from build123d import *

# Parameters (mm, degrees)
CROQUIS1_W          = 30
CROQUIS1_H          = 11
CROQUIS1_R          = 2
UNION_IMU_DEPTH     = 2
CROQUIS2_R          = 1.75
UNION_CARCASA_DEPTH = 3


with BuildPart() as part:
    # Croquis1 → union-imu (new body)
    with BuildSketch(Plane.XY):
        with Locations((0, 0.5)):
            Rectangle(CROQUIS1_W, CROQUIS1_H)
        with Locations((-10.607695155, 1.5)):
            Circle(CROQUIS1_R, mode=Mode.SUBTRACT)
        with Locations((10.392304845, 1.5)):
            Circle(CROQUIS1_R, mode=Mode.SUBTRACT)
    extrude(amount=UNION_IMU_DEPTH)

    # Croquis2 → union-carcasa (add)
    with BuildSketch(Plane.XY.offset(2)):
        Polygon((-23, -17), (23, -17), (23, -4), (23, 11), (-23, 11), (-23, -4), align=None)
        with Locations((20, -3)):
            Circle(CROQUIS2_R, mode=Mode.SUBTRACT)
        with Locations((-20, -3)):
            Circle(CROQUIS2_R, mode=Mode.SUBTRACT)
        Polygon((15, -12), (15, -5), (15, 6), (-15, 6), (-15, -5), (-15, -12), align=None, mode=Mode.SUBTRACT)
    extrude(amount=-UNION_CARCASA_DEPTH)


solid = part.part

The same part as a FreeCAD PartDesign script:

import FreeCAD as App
import Part
import Sketcher

V = App.Vector


def add_polygon(sketch, points):
    """Adds a closed chain of lines whose ends are joined by coincident constraints."""
    first, n = sketch.GeometryCount, len(points)
    for a, b in zip(points, points[1:] + points[:1]):
        sketch.addGeometry(Part.LineSegment(App.Vector(*a, 0), App.Vector(*b, 0)), False)
    for i in range(n):
        sketch.addConstraint(Sketcher.Constraint("Coincident", first + i, 2, first + (i + 1) % n, 1))

doc = App.newDocument("Part")
params = doc.addObject("Spreadsheet::Sheet", "Params")
for row, (alias, value) in enumerate([
    ("sketch1_diameter", "4 mm"),
    ("sketch1_width", "30 mm"),
    ("sketch1_height", "11 mm"),
    ("pad1_length", "2 mm"),
    ("sketch2_diameter", "3.5 mm"),
    ("sketch2_width", "46 mm"),
    ("sketch2_width2", "30 mm"),
    ("sketch2_height", "28 mm"),
    ("sketch2_height2", "18 mm"),
    ("pad2_length", "3 mm"),
], start=1):
    params.set(f"A{row}", alias)
    params.set(f"B{row}", "=" + value)
    params.setAlias(f"B{row}", alias)

body = doc.addObject("PartDesign::Body", "Body")

sketch1 = doc.addObject("Sketcher::SketchObject", "Sketch")
body.addObject(sketch1)
sketch1.AttachmentSupport = (doc.XY_Plane, [""])
sketch1.MapMode = "FlatFace"
add_polygon(sketch1, [(-15, 6), (-15, -5), (15, -5), (15, 6)])
sketch1.addGeometry(Part.Circle(V(-10.6, 1.5, 0), V(0, 0, 1), 2), False)
sketch1.addGeometry(Part.Circle(V(10.4, 1.5, 0), V(0, 0, 1), 2), False)
sketch1.addConstraint([
    Sketcher.Constraint("Vertical", 0),
    Sketcher.Constraint("Horizontal", 1),
    Sketcher.Constraint("Vertical", 2),
    Sketcher.Constraint("Horizontal", 3),
    Sketcher.Constraint("Equal", 4, 5),
    Sketcher.Constraint("Horizontal", 4, 3, 5, 3),
    Sketcher.Constraint("Diameter", 4, 4.0),
    Sketcher.Constraint("DistanceX", 1, 1, 1, 2, 30.0),
    Sketcher.Constraint("DistanceY", 0, 2, 0, 1, 11.0),
    Sketcher.Constraint("DistanceX", 0, 2, -1, 1, 15.0),
    Sketcher.Constraint("DistanceY", 0, 2, -1, 1, 5.0),
    Sketcher.Constraint("DistanceX", 4, 3, 5, 3, 21.0),
    Sketcher.Constraint("DistanceY", -1, 1, 4, 3, 1.5),
    Sketcher.Constraint("DistanceX", 4, 3, -1, 1, 10.607695),
])
sketch1.setExpression("Constraints[10]", "Params.sketch1_diameter")
sketch1.setExpression("Constraints[11]", "Params.sketch1_width")
sketch1.setExpression("Constraints[12]", "Params.sketch1_height")
pad1 = doc.addObject("PartDesign::Pad", "Pad")
body.addObject(pad1)
pad1.Profile = sketch1
pad1.setExpression("Length", "Params.pad1_length")

sketch2 = doc.addObject("Sketcher::SketchObject", "Sketch001")
body.addObject(sketch2)
sketch2.AttachmentSupport = (doc.XY_Plane, [""])
sketch2.MapMode = "FlatFace"
sketch2.AttachmentOffset = App.Placement(V(0, 0, 2), App.Rotation())
add_polygon(sketch2, [(-23, -17), (23, -17), (23, 11), (-23, 11)])
sketch2.addGeometry(Part.Circle(V(-20, -3, 0), V(0, 0, 1), 1.8), False)
add_polygon(sketch2, [(15, 6), (15, -12), (-15, -12), (-15, 6)])
sketch2.addGeometry(Part.Circle(V(20, -3, 0), V(0, 0, 1), 1.8), False)
sketch2.addConstraint([
    Sketcher.Constraint("Horizontal", 0),
    Sketcher.Constraint("Vertical", 1),
    Sketcher.Constraint("Horizontal", 2),
    Sketcher.Constraint("Vertical", 3),
    Sketcher.Constraint("Vertical", 5),
    Sketcher.Constraint("Horizontal", 6),
    Sketcher.Constraint("Vertical", 7),
    Sketcher.Constraint("Horizontal", 8),
    Sketcher.Constraint("Equal", 4, 9),
    Sketcher.Constraint("Symmetric", 4, 3, 9, 3, -2),
    Sketcher.Constraint("Diameter", 4, 3.5),
    Sketcher.Constraint("DistanceX", 0, 1, 0, 2, 46.0),
    Sketcher.Constraint("DistanceX", 6, 2, 6, 1, 30.0),
    Sketcher.Constraint("DistanceY", 1, 1, 1, 2, 28.0),
    Sketcher.Constraint("DistanceY", 5, 2, 5, 1, 18.0),
    Sketcher.Constraint("DistanceX", 4, 3, -1, 1, 20.0),
    Sketcher.Constraint("DistanceY", 4, 3, -1, 1, 3.0),
    Sketcher.Constraint("DistanceX", -1, 1, 0, 2, 23.0),
    Sketcher.Constraint("DistanceY", 0, 2, -1, 1, 17.0),
    Sketcher.Constraint("DistanceX", -1, 1, 5, 2, 15.0),
    Sketcher.Constraint("DistanceY", 5, 2, -1, 1, 12.0),
])
sketch2.setExpression("Constraints[18]", "Params.sketch2_diameter")
sketch2.setExpression("Constraints[19]", "Params.sketch2_width")
sketch2.setExpression("Constraints[20]", "Params.sketch2_width2")
sketch2.setExpression("Constraints[21]", "Params.sketch2_height")
sketch2.setExpression("Constraints[22]", "Params.sketch2_height2")
pad2 = doc.addObject("PartDesign::Pad", "Pad001")
body.addObject(pad2)
pad2.Profile = sketch2
pad2.setExpression("Length", "Params.pad2_length")
pad2.Reversed = True

doc.recompute()
